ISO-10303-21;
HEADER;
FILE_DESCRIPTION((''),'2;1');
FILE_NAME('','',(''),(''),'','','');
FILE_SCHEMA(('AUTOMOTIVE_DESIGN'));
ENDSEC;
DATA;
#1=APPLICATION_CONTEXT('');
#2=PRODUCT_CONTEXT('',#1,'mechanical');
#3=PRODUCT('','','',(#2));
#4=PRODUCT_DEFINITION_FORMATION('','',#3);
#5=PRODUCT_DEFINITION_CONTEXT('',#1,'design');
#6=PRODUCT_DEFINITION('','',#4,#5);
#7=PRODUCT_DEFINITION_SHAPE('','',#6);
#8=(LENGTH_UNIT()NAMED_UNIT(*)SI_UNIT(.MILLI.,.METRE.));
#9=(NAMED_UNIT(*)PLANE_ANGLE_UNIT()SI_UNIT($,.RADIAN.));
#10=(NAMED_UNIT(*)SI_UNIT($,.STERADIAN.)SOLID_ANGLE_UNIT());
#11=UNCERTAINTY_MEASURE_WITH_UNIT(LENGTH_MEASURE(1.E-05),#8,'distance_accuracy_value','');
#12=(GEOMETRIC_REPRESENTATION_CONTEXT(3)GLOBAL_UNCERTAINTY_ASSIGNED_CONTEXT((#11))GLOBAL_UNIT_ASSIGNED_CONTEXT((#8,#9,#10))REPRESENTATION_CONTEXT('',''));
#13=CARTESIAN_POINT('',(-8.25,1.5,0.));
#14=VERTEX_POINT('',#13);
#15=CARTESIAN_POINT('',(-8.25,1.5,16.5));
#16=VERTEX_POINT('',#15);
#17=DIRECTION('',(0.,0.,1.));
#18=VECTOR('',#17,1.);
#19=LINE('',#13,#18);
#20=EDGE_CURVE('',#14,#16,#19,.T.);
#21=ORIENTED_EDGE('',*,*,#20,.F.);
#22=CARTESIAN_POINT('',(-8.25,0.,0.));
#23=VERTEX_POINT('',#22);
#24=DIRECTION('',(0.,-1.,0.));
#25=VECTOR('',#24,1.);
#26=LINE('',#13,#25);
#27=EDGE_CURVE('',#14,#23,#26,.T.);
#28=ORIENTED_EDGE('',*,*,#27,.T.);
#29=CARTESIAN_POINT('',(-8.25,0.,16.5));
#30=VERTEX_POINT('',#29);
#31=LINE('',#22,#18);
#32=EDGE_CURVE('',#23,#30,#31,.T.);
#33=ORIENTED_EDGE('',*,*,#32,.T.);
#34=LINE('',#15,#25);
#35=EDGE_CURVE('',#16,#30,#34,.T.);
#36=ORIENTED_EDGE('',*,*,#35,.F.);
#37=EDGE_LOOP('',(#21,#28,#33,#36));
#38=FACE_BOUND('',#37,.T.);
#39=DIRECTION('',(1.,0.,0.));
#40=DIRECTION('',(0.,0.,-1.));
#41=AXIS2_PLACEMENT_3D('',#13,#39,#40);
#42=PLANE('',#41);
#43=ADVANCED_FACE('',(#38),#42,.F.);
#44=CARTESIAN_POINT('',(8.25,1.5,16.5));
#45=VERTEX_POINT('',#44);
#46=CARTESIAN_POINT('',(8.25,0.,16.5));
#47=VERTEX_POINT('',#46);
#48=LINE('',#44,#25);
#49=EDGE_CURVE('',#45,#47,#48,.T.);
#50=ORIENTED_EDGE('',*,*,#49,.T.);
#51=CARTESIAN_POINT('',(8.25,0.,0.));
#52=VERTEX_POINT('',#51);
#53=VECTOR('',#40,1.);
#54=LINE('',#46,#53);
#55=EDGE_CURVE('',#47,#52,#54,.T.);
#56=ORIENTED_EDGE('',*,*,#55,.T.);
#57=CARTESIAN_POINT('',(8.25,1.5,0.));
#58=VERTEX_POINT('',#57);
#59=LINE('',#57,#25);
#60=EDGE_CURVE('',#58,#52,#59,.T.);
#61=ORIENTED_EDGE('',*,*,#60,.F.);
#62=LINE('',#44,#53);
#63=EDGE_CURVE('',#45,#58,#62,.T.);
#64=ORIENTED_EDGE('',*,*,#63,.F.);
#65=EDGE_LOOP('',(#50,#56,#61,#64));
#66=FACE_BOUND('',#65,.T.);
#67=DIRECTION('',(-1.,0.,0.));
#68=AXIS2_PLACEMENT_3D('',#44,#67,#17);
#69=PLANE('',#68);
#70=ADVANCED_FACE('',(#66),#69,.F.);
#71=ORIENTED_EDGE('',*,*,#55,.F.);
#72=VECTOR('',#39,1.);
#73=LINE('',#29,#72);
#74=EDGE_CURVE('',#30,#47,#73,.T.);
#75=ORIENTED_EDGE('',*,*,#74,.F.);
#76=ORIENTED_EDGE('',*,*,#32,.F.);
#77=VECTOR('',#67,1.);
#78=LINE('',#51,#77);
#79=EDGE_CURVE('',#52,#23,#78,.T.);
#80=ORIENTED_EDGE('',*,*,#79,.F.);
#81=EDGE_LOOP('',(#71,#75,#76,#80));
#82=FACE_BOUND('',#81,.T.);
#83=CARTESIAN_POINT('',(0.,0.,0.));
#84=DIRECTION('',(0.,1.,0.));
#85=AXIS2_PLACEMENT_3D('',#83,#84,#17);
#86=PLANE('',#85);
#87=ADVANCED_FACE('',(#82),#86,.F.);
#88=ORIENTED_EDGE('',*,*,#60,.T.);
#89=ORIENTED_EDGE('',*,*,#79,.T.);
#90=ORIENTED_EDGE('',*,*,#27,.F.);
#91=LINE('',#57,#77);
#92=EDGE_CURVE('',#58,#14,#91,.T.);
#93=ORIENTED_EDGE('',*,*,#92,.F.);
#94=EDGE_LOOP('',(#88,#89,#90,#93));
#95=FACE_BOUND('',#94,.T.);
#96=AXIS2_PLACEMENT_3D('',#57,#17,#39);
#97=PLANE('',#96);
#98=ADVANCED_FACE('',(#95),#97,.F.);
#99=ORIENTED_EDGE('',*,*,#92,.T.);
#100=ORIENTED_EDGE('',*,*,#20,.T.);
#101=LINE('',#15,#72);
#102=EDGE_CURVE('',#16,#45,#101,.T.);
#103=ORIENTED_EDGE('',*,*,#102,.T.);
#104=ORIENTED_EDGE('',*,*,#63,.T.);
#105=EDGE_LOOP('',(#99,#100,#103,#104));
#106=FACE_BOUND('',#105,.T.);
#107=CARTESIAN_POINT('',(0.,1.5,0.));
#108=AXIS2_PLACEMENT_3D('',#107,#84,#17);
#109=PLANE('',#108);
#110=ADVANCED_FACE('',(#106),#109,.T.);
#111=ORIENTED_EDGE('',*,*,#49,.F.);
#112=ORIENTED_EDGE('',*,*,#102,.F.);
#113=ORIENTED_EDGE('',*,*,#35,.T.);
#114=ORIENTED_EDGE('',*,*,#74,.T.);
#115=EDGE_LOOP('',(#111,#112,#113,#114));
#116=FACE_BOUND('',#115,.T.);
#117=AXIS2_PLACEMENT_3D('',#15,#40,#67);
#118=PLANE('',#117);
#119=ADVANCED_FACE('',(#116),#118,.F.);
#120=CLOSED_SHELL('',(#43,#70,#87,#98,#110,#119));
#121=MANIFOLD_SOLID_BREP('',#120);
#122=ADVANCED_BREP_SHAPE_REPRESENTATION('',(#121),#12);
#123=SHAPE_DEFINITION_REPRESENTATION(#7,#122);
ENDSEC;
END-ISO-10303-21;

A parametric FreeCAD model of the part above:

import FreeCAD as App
import Part
import Sketcher
from FreeCAD import Vector


def add_polygon(sketch, points):
    """Adds a closed chain of lines whose ends are joined by coincident constraints."""
    first, n = sketch.GeometryCount, len(points)
    for a, b in zip(points, points[1:] + points[:1]):
        sketch.addGeometry(Part.LineSegment(App.Vector(*a, 0), App.Vector(*b, 0)), False)
    for i in range(n):
        sketch.addConstraint(Sketcher.Constraint("Coincident", first + i, 2, first + (i + 1) % n, 1))

doc = App.newDocument("Part")
params = doc.addObject("Spreadsheet::Sheet", "Params")
for row, (alias, value) in enumerate([
    ("sketch1_width", "16.5 mm"),
    ("pad1_length", "1.5 mm"),
], start=1):
    params.set(f"A{row}", alias)
    params.set(f"B{row}", "=" + value)
    params.setAlias(f"B{row}", alias)

body = doc.addObject("PartDesign::Body", "Body")

sketch1 = body.newObject("Sketcher::SketchObject", "Sketch")
sketch1.AttachmentSupport = (doc.getObject("XZ_Plane"), [""])
sketch1.MapMode = "FlatFace"
add_polygon(sketch1, [(-8, 0), (-8, 16), (8, 16), (8, 0)])
sketch1.addConstraint(Sketcher.Constraint("Vertical", 0))
sketch1.addConstraint(Sketcher.Constraint("Horizontal", 1))
sketch1.addConstraint(Sketcher.Constraint("Vertical", 2))
sketch1.addConstraint(Sketcher.Constraint("Horizontal", 3))
sketch1.addConstraint(Sketcher.Constraint("Symmetric", 2, 2, 3, 2, -1, 1))
sketch1.addConstraint(Sketcher.Constraint("Equal", 3, 0))
sketch1.addConstraint(Sketcher.Constraint("DistanceX", 1, 1, 1, 2, 16.5))
sketch1.setExpression("Constraints[10]", "Params.sketch1_width")
pad1 = body.newObject("PartDesign::Pad", "Pad")
pad1.Profile = sketch1
pad1.setExpression("Length", "Params.pad1_length")
pad1.Reversed = True

doc.recompute()
